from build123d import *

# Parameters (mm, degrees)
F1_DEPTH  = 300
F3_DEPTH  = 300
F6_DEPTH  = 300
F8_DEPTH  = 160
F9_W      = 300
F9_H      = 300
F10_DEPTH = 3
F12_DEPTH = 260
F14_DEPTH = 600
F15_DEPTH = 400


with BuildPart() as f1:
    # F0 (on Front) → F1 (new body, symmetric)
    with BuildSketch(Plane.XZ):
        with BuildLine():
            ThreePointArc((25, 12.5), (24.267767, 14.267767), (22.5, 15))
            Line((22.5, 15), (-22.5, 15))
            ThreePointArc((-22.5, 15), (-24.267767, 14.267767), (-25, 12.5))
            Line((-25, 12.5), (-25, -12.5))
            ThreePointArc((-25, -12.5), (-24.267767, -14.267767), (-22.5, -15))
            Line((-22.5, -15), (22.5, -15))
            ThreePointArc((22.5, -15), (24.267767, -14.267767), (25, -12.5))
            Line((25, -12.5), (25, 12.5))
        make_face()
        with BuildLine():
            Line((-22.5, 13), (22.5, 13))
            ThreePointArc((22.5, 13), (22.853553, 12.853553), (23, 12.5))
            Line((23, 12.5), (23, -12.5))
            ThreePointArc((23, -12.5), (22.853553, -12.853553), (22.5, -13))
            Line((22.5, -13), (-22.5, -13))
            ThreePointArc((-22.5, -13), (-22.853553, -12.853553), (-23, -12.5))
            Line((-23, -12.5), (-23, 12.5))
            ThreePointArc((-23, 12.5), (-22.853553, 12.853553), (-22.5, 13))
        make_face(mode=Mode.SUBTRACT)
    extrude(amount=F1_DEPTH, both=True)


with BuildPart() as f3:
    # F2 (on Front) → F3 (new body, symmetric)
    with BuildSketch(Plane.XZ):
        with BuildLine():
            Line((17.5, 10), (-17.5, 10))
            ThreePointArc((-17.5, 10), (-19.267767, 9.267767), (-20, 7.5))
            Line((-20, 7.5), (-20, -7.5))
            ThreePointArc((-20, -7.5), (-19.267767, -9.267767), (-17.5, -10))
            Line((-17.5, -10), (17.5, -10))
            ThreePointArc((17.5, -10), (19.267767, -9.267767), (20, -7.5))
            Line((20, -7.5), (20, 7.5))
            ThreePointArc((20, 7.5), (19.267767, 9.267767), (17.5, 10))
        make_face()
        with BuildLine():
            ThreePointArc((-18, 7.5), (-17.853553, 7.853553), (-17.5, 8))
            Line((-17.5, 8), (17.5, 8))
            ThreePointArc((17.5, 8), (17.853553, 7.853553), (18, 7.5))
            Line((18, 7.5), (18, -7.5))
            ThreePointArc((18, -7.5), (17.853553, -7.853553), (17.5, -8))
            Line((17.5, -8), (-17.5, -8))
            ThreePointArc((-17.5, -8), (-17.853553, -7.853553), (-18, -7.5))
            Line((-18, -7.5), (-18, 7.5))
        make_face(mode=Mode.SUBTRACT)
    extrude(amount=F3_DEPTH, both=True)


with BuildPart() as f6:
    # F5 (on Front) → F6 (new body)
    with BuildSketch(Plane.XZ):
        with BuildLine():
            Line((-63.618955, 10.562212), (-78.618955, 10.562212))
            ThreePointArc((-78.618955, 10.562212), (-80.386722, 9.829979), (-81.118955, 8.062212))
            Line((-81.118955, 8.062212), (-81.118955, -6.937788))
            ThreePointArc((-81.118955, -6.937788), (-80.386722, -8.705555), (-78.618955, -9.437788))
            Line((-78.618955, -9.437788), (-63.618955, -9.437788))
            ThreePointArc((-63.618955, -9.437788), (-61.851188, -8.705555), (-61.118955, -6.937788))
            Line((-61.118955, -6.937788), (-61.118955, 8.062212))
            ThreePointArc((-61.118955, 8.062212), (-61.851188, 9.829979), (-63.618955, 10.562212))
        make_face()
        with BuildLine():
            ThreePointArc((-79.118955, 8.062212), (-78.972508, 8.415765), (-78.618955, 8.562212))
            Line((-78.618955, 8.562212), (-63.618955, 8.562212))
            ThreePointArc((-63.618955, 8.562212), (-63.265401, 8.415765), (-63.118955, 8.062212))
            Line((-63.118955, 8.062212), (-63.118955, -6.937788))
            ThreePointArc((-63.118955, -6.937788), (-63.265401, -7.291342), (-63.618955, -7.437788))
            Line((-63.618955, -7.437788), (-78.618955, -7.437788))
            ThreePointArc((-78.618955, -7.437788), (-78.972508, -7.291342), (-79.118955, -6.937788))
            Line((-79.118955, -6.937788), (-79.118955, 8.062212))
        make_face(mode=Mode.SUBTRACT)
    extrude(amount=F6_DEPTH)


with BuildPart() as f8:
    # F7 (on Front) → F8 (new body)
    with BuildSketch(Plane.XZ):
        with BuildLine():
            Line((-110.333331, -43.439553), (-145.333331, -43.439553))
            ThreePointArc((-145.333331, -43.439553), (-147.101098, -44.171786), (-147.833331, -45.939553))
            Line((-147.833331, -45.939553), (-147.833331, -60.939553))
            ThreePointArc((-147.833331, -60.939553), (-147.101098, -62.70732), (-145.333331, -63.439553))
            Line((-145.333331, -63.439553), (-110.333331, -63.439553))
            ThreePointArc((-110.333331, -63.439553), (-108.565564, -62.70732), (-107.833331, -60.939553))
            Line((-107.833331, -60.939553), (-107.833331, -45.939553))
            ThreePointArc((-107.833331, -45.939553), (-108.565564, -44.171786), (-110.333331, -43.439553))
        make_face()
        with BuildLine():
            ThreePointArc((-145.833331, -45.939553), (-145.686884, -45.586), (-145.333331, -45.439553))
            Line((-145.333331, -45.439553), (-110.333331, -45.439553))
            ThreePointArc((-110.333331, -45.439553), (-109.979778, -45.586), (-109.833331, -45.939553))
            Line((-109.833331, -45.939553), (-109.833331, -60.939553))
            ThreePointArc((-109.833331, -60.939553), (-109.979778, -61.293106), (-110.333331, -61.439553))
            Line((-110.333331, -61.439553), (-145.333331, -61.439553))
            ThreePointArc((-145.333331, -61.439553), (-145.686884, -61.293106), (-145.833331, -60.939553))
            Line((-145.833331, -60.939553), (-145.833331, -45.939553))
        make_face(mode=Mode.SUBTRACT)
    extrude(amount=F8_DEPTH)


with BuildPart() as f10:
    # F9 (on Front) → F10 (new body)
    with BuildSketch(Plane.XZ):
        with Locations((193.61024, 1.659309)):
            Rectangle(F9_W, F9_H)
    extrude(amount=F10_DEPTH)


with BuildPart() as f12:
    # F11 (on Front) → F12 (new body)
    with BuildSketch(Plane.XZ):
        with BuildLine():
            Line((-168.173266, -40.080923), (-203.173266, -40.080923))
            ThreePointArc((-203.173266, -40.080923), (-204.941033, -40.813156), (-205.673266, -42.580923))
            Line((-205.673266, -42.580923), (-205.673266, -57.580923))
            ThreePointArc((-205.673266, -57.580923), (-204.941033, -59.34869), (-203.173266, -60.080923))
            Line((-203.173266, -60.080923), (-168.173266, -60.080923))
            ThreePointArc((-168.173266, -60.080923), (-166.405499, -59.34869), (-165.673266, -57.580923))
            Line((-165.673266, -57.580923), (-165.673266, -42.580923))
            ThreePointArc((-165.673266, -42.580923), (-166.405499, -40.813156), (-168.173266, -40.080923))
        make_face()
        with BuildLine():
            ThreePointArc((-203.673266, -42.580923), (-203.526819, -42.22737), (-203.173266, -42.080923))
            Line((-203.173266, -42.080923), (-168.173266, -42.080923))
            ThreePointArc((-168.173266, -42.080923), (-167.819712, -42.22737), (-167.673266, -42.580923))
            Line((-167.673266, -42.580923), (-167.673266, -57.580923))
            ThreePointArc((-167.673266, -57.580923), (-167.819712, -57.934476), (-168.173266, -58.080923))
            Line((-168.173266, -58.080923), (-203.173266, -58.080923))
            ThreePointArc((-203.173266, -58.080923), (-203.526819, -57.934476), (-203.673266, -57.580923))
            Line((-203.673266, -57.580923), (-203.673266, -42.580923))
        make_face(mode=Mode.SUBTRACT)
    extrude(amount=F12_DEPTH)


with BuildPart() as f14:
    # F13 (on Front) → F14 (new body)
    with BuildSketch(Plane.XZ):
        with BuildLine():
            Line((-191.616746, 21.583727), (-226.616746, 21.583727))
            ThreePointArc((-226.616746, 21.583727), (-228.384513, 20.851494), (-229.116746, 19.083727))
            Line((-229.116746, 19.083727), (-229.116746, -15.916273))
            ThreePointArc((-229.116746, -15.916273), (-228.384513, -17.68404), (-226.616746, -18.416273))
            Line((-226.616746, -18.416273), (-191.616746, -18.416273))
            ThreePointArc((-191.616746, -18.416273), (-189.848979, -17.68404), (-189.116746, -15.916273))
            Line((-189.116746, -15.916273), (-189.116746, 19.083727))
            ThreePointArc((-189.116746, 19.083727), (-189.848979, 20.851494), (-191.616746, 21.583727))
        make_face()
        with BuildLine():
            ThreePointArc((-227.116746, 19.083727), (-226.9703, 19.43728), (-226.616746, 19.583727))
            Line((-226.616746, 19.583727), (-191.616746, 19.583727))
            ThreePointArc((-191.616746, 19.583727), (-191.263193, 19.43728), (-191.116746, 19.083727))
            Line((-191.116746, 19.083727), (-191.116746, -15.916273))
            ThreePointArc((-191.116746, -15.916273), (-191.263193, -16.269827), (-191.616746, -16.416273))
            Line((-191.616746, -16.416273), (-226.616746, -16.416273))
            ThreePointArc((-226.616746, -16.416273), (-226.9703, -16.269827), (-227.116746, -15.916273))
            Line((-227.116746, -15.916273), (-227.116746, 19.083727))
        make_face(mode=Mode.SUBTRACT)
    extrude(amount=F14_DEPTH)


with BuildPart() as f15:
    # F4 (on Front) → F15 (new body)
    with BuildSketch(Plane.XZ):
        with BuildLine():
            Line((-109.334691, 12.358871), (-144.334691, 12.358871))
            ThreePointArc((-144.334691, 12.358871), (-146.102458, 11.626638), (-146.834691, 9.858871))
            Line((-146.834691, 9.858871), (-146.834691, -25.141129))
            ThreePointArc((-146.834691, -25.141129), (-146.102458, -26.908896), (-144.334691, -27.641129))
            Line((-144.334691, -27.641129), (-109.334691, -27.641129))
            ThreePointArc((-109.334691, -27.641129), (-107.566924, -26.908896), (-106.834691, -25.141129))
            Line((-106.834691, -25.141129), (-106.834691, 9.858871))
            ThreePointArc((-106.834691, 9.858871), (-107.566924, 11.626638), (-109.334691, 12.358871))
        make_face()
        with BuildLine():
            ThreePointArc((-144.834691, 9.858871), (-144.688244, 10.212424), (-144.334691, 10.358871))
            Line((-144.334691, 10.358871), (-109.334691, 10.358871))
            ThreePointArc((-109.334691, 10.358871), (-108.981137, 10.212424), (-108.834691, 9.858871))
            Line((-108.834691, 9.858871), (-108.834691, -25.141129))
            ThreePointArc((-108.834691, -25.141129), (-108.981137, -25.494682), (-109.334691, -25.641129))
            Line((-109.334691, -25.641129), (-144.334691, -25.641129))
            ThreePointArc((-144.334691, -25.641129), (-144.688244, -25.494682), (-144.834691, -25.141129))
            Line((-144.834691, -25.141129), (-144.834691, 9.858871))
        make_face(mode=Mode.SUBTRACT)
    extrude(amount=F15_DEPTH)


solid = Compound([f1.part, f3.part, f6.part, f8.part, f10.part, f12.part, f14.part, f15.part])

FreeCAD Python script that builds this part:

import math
import FreeCAD as App
import Part
import Sketcher
Q = App.Units.Quantity

doc = App.newDocument("Part")
body = doc.addObject("PartDesign::Body", "Body")

# Sketch on XZ plane
sketch1 = body.newObject("Sketcher::SketchObject", "Sketch")
sketch1.AttachmentSupport = (doc.getObject("XZ_Plane"), [""])
sketch1.MapMode = "FlatFace"
sketch1.addGeometry([
    Part.ArcOfCircle(Part.Circle(App.Vector(22.5, 12.5, 0), App.Vector(0, 0, 1), 2.5), math.radians(0), math.radians(90)),  # 0
    Part.LineSegment(App.Vector(22.5, 15, 0), App.Vector(-22.5, 15, 0)),  # 1
    Part.ArcOfCircle(Part.Circle(App.Vector(-22.5, 12.5, 0), App.Vector(0, 0, 1), 2.5), math.radians(90), math.radians(180)),  # 2
    Part.LineSegment(App.Vector(-25, 12.5, 0), App.Vector(-25, -12.5, 0)),  # 3
    Part.ArcOfCircle(Part.Circle(App.Vector(-22.5, -12.5, 0), App.Vector(0, 0, 1), 2.5), math.radians(180), math.radians(270)),  # 4
    Part.LineSegment(App.Vector(-22.5, -15, 0), App.Vector(22.5, -15, 0)),  # 5
    Part.ArcOfCircle(Part.Circle(App.Vector(22.5, -12.5, 0), App.Vector(0, 0, 1), 2.5), math.radians(-90), math.radians(0)),  # 6
    Part.LineSegment(App.Vector(25, -12.5, 0), App.Vector(25, 12.5, 0)),  # 7
    Part.ArcOfCircle(Part.Circle(App.Vector(-22.5, 12.5, 0), App.Vector(0, 0, 1), 0.5), math.radians(90), math.radians(180)),  # 8
    Part.LineSegment(App.Vector(-22.5, 13, 0), App.Vector(22.5, 13, 0)),  # 9
    Part.ArcOfCircle(Part.Circle(App.Vector(22.5, 12.5, 0), App.Vector(0, 0, 1), 0.5), math.radians(0), math.radians(90)),  # 10
    Part.LineSegment(App.Vector(23, 12.5, 0), App.Vector(23, -12.5, 0)),  # 11
    Part.ArcOfCircle(Part.Circle(App.Vector(22.5, -12.5, 0), App.Vector(0, 0, 1), 0.5), math.radians(-90), math.radians(0)),  # 12
    Part.LineSegment(App.Vector(22.5, -13, 0), App.Vector(-22.5, -13, 0)),  # 13
    Part.ArcOfCircle(Part.Circle(App.Vector(-22.5, -12.5, 0), App.Vector(0, 0, 1), 0.5), math.radians(-180), math.radians(-90)),  # 14
    Part.LineSegment(App.Vector(-23, -12.5, 0), App.Vector(-23, 12.5, 0)),  # 15
], False)
sketch1.addConstraint([
    Sketcher.Constraint("Tangent", 0, 2, 1, 1),
    Sketcher.Constraint("Tangent", 1, 2, 2, 1),
    Sketcher.Constraint("Tangent", 2, 2, 3, 1),
    Sketcher.Constraint("Tangent", 3, 2, 4, 1),
    Sketcher.Constraint("Tangent", 4, 2, 5, 1),
    Sketcher.Constraint("Tangent", 5, 2, 6, 1),
    Sketcher.Constraint("Tangent", 6, 2, 7, 1),
    Sketcher.Constraint("Tangent", 7, 2, 0, 1),
    Sketcher.Constraint("Coincident", 8, 1, 9, 1),
    Sketcher.Constraint("Coincident", 9, 2, 10, 2),
    Sketcher.Constraint("Coincident", 10, 1, 11, 1),
    Sketcher.Constraint("Coincident", 11, 2, 12, 2),
    Sketcher.Constraint("Coincident", 12, 1, 13, 1),
    Sketcher.Constraint("Coincident", 13, 2, 14, 2),
    Sketcher.Constraint("Coincident", 14, 1, 15, 1),
    Sketcher.Constraint("Coincident", 15, 2, 8, 2),
    Sketcher.Constraint("Horizontal", 1),
    Sketcher.Constraint("Vertical", 3),
    Sketcher.Constraint("Horizontal", 5),
    Sketcher.Constraint("Vertical", 7),
    Sketcher.Constraint("Horizontal", 9),
    Sketcher.Constraint("Vertical", 11),
    Sketcher.Constraint("Horizontal", 13),
    Sketcher.Constraint("Vertical", 15),
    Sketcher.Constraint("Coincident", 8, 3, 2, 3),
    Sketcher.Constraint("Coincident", 10, 3, 0, 3),
    Sketcher.Constraint("Coincident", 12, 3, 6, 3),
    Sketcher.Constraint("Equal", 0, 2),
    Sketcher.Constraint("Equal", 2, 4),
    Sketcher.Constraint("Equal", 4, 6),
    Sketcher.Constraint("Equal", 12, 14),
    Sketcher.Constraint("Symmetric", 0, 3, 4, 3, -1, 1),
    Sketcher.Constraint("Horizontal", 7, 2, 10, 1),
    Sketcher.Constraint("Horizontal", 6, 2, 11, 2),
    Sketcher.Constraint("Horizontal", 11, 2, 14, 1),
    Sketcher.Constraint("Horizontal", 10, 1, 15, 2),
    Sketcher.Constraint("Vertical", 4, 2, 8, 1),
    Sketcher.Constraint("Vertical", 5, 2, 9, 2),
    Sketcher.Constraint("Vertical", 9, 2, 12, 1),
    Sketcher.Constraint("Vertical", 8, 1, 13, 2),
    Sketcher.Constraint("Radius", 0, Q("2.5 mm")),
    Sketcher.Constraint("Radius", 8, Q("0.500001 mm")),
    Sketcher.Constraint("DistanceX", 1, 2, 1, 1, Q("45 mm")),
    Sketcher.Constraint("DistanceY", 3, 2, 3, 1, Q("25 mm")),
])
pad1 = body.newObject("PartDesign::Pad", "Pad")
pad1.Profile = sketch1
pad1.Length = 600
pad1.Midplane = True
body2 = doc.addObject("PartDesign::Body", "Body001")

# Sketch on XZ plane
sketch2 = body2.newObject("Sketcher::SketchObject", "Sketch001")
sketch2.AttachmentSupport = (doc.getObject("XZ_Plane001"), [""])
sketch2.MapMode = "FlatFace"
sketch2.addGeometry([
    Part.LineSegment(App.Vector(17.5, 10, 0), App.Vector(-17.5, 10, 0)),  # 0
    Part.ArcOfCircle(Part.Circle(App.Vector(-17.5, 7.5, 0), App.Vector(0, 0, 1), 2.5), math.radians(90), math.radians(180)),  # 1
    Part.LineSegment(App.Vector(-20, 7.5, 0), App.Vector(-20, -7.5, 0)),  # 2
    Part.ArcOfCircle(Part.Circle(App.Vector(-17.5, -7.5, 0), App.Vector(0, 0, 1), 2.5), math.radians(180), math.radians(270)),  # 3
    Part.LineSegment(App.Vector(-17.5, -10, 0), App.Vector(17.5, -10, 0)),  # 4
    Part.ArcOfCircle(Part.Circle(App.Vector(17.5, -7.5, 0), App.Vector(0, 0, 1), 2.5), math.radians(-90), math.radians(0)),  # 5
    Part.LineSegment(App.Vector(20, -7.5, 0), App.Vector(20, 7.5, 0)),  # 6
    Part.ArcOfCircle(Part.Circle(App.Vector(17.5, 7.5, 0), App.Vector(0, 0, 1), 2.5), math.radians(0), math.radians(90)),  # 7
    Part.LineSegment(App.Vector(-18, -7.5, 0), App.Vector(-18, 7.5, 0)),  # 8
    Part.ArcOfCircle(Part.Circle(App.Vector(-17.5, 7.5, 0), App.Vector(0, 0, 1), 0.5), math.radians(90), math.radians(180)),  # 9
    Part.LineSegment(App.Vector(-17.5, 8, 0), App.Vector(17.5, 8, 0)),  # 10
    Part.ArcOfCircle(Part.Circle(App.Vector(17.5, 7.5, 0), App.Vector(0, 0, 1), 0.5), math.radians(0), math.radians(90)),  # 11
    Part.LineSegment(App.Vector(18, 7.5, 0), App.Vector(18, -7.5, 0)),  # 12
    Part.ArcOfCircle(Part.Circle(App.Vector(17.5, -7.5, 0), App.Vector(0, 0, 1), 0.5), math.radians(-90), math.radians(0)),  # 13
    Part.LineSegment(App.Vector(17.5, -8, 0), App.Vector(-17.5, -8, 0)),  # 14
    Part.ArcOfCircle(Part.Circle(App.Vector(-17.5, -7.5, 0), App.Vector(0, 0, 1), 0.5), math.radians(-180), math.radians(-90)),  # 15
], False)
sketch2.addConstraint([
    Sketcher.Constraint("Tangent", 0, 2, 1, 1),
    Sketcher.Constraint("Tangent", 1, 2, 2, 1),
    Sketcher.Constraint("Tangent", 2, 2, 3, 1),
    Sketcher.Constraint("Tangent", 3, 2, 4, 1),
    Sketcher.Constraint("Tangent", 4, 2, 5, 1),
    Sketcher.Constraint("Tangent", 5, 2, 6, 1),
    Sketcher.Constraint("Tangent", 6, 2, 7, 1),
    Sketcher.Constraint("Tangent", 7, 2, 0, 1),
    Sketcher.Constraint("Coincident", 8, 2, 9, 2),
    Sketcher.Constraint("Coincident", 9, 1, 10, 1),
    Sketcher.Constraint("Coincident", 10, 2, 11, 2),
    Sketcher.Constraint("Coincident", 11, 1, 12, 1),
    Sketcher.Constraint("Coincident", 12, 2, 13, 2),
    Sketcher.Constraint("Coincident", 13, 1, 14, 1),
    Sketcher.Constraint("Coincident", 14, 2, 15, 2),
    Sketcher.Constraint("Coincident", 15, 1, 8, 1),
    Sketcher.Constraint("Horizontal", 0),
    Sketcher.Constraint("Vertical", 2),
    Sketcher.Constraint("Horizontal", 4),
    Sketcher.Constraint("Vertical", 6),
    Sketcher.Constraint("Vertical", 8),
    Sketcher.Constraint("Horizontal", 10),
    Sketcher.Constraint("Vertical", 12),
    Sketcher.Constraint("Horizontal", 14),
    Sketcher.Constraint("Coincident", 9, 3, 1, 3),
    Sketcher.Constraint("Coincident", 11, 3, 7, 3),
    Sketcher.Constraint("Coincident", 13, 3, 5, 3),
    Sketcher.Constraint("Equal", 1, 3),
    Sketcher.Constraint("Equal", 3, 5),
    Sketcher.Constraint("Equal", 5, 7),
    Sketcher.Constraint("Equal", 13, 15),
    Sketcher.Constraint("Symmetric", 1, 3, 5, 3, -1, 1),
    Sketcher.Constraint("Horizontal", 6, 2, 8, 2),
    Sketcher.Constraint("Horizontal", 8, 2, 11, 1),
    Sketcher.Constraint("Horizontal", 5, 2, 12, 2),
    Sketcher.Constraint("Horizontal", 12, 2, 15, 1),
    Sketcher.Constraint("Vertical", 3, 2, 9, 1),
    Sketcher.Constraint("Vertical", 7, 2, 10, 2),
    Sketcher.Constraint("Vertical", 10, 2, 13, 1),
    Sketcher.Constraint("Vertical", 9, 1, 14, 2),
    Sketcher.Constraint("Radius", 1, Q("2.5 mm")),
    Sketcher.Constraint("Radius", 9, Q("0.500001 mm")),
    Sketcher.Constraint("DistanceX", 0, 2, 0, 1, Q("35 mm")),
    Sketcher.Constraint("DistanceY", 2, 2, 2, 1, Q("15 mm")),
])
pad2 = body2.newObject("PartDesign::Pad", "Pad001")
pad2.Profile = sketch2
pad2.Length = 600
pad2.Midplane = True
body3 = doc.addObject("PartDesign::Body", "Body002")

# Sketch on XZ plane
sketch3 = body3.newObject("Sketcher::SketchObject", "Sketch002")
sketch3.AttachmentSupport = (doc.getObject("XZ_Plane002"), [""])
sketch3.MapMode = "FlatFace"
sketch3.addGeometry([
    Part.LineSegment(App.Vector(-63.62, 10.56, 0), App.Vector(-78.62, 10.56, 0)),  # 0
    Part.ArcOfCircle(Part.Circle(App.Vector(-78.62, 8.06, 0), App.Vector(0, 0, 1), 2.5), math.radians(90), math.radians(180)),  # 1
    Part.LineSegment(App.Vector(-81.12, 8.06, 0), App.Vector(-81.12, -6.94, 0)),  # 2
    Part.ArcOfCircle(Part.Circle(App.Vector(-78.62, -6.94, 0), App.Vector(0, 0, 1), 2.5), math.radians(180), math.radians(270)),  # 3
    Part.LineSegment(App.Vector(-78.62, -9.44, 0), App.Vector(-63.62, -9.44, 0)),  # 4
    Part.ArcOfCircle(Part.Circle(App.Vector(-63.62, -6.94, 0), App.Vector(0, 0, 1), 2.5), math.radians(-90), math.radians(0)),  # 5
    Part.LineSegment(App.Vector(-61.12, -6.94, 0), App.Vector(-61.12, 8.06, 0)),  # 6
    Part.ArcOfCircle(Part.Circle(App.Vector(-63.62, 8.06, 0), App.Vector(0, 0, 1), 2.5), math.radians(0), math.radians(90)),  # 7
    Part.LineSegment(App.Vector(-79.12, -6.94, 0), App.Vector(-79.12, 8.06, 0)),  # 8
    Part.ArcOfCircle(Part.Circle(App.Vector(-78.62, 8.06, 0), App.Vector(0, 0, 1), 0.5), math.radians(90), math.radians(180)),  # 9
    Part.LineSegment(App.Vector(-78.62, 8.56, 0), App.Vector(-63.62, 8.56, 0)),  # 10
    Part.ArcOfCircle(Part.Circle(App.Vector(-63.62, 8.06, 0), App.Vector(0, 0, 1), 0.5), math.radians(0), math.radians(90)),  # 11
    Part.LineSegment(App.Vector(-63.12, 8.06, 0), App.Vector(-63.12, -6.94, 0)),  # 12
    Part.ArcOfCircle(Part.Circle(App.Vector(-63.62, -6.94, 0), App.Vector(0, 0, 1), 0.5), math.radians(-90), math.radians(0)),  # 13
    Part.LineSegment(App.Vector(-63.62, -7.44, 0), App.Vector(-78.62, -7.44, 0)),  # 14
    Part.ArcOfCircle(Part.Circle(App.Vector(-78.62, -6.94, 0), App.Vector(0, 0, 1), 0.5), math.radians(180), math.radians(270)),  # 15
], False)
sketch3.addConstraint([
    Sketcher.Constraint("Tangent", 0, 2, 1, 1),
    Sketcher.Constraint("Tangent", 1, 2, 2, 1),
    Sketcher.Constraint("Tangent", 2, 2, 3, 1),
    Sketcher.Constraint("Tangent", 3, 2, 4, 1),
    Sketcher.Constraint("Tangent", 4, 2, 5, 1),
    Sketcher.Constraint("Tangent", 5, 2, 6, 1),
    Sketcher.Constraint("Tangent", 6, 2, 7, 1),
    Sketcher.Constraint("Tangent", 7, 2, 0, 1),
    Sketcher.Constraint("Coincident", 8, 2, 9, 2),
    Sketcher.Constraint("Coincident", 9, 1, 10, 1),
    Sketcher.Constraint("Tangent", 10, 2, 11, 2),
    Sketcher.Constraint("Tangent", 11, 1, 12, 1),
    Sketcher.Constraint("Coincident", 12, 2, 13, 2),
    Sketcher.Constraint("Coincident", 13, 1, 14, 1),
    Sketcher.Constraint("Tangent", 14, 2, 15, 2),
    Sketcher.Constraint("Tangent", 15, 1, 8, 1),
    Sketcher.Constraint("Horizontal", 0),
    Sketcher.Constraint("Vertical", 2),
    Sketcher.Constraint("Horizontal", 4),
    Sketcher.Constraint("Vertical", 6),
    Sketcher.Constraint("Vertical", 8),
    Sketcher.Constraint("Horizontal", 10),
    Sketcher.Constraint("Vertical", 12),
    Sketcher.Constraint("Horizontal", 14),
    Sketcher.Constraint("Coincident", 9, 3, 1, 3),
    Sketcher.Constraint("Coincident", 11, 3, 7, 3),
    Sketcher.Constraint("Coincident", 13, 3, 5, 3),
    Sketcher.Constraint("Equal", 1, 3),
    Sketcher.Constraint("Equal", 3, 5),
    Sketcher.Constraint("Equal", 5, 7),
    Sketcher.Constraint("Equal", 13, 15),
    Sketcher.Constraint("Horizontal", 6, 2, 8, 2),
    Sketcher.Constraint("Horizontal", 5, 2, 12, 2),
    Sketcher.Constraint("Vertical", 3, 2, 9, 1),
    Sketcher.Constraint("Vertical", 10, 2, 13, 1),
    Sketcher.Constraint("Equal", 14, 2),
    Sketcher.Constraint("Radius", 1, Q("2.5 mm")),
    Sketcher.Constraint("Radius", 9, Q("0.500001 mm")),
    Sketcher.Constraint("DistanceX", 0, 2, 0, 1, Q("15 mm")),
    Sketcher.Constraint("DistanceY", 3, 3, -1, 1, Q("6.937788 mm")),
    Sketcher.Constraint("DistanceX", 1, 3, -1, 1, Q("78.618955 mm")),
])
pad3 = body3.newObject("PartDesign::Pad", "Pad002")
pad3.Profile = sketch3
pad3.Length = 300
body4 = doc.addObject("PartDesign::Body", "Body003")

# Sketch on XZ plane
sketch4 = body4.newObject("Sketcher::SketchObject", "Sketch003")
sketch4.AttachmentSupport = (doc.getObject("XZ_Plane003"), [""])
sketch4.MapMode = "FlatFace"
sketch4.addGeometry([
    Part.LineSegment(App.Vector(-110.3, -43.4, 0), App.Vector(-145.3, -43.4, 0)),  # 0
    Part.ArcOfCircle(Part.Circle(App.Vector(-145.3, -45.9, 0), App.Vector(0, 0, 1), 2.5), math.radians(90), math.radians(180)),  # 1
    Part.LineSegment(App.Vector(-147.8, -45.9, 0), App.Vector(-147.8, -60.9, 0)),  # 2
    Part.ArcOfCircle(Part.Circle(App.Vector(-145.3, -60.9, 0), App.Vector(0, 0, 1), 2.5), math.radians(180), math.radians(270)),  # 3
    Part.LineSegment(App.Vector(-145.3, -63.4, 0), App.Vector(-110.3, -63.4, 0)),  # 4
    Part.ArcOfCircle(Part.Circle(App.Vector(-110.3, -60.9, 0), App.Vector(0, 0, 1), 2.5), math.radians(-90), math.radians(0)),  # 5
    Part.LineSegment(App.Vector(-107.8, -60.9, 0), App.Vector(-107.8, -45.9, 0)),  # 6
    Part.ArcOfCircle(Part.Circle(App.Vector(-110.3, -45.9, 0), App.Vector(0, 0, 1), 2.5), math.radians(0), math.radians(90)),  # 7
    Part.LineSegment(App.Vector(-145.8, -60.9, 0), App.Vector(-145.8, -45.9, 0)),  # 8
    Part.ArcOfCircle(Part.Circle(App.Vector(-145.3, -45.9, 0), App.Vector(0, 0, 1), 0.5), math.radians(90), math.radians(180)),  # 9
    Part.LineSegment(App.Vector(-145.3, -45.4, 0), App.Vector(-110.3, -45.4, 0)),  # 10
    Part.ArcOfCircle(Part.Circle(App.Vector(-110.3, -45.9, 0), App.Vector(0, 0, 1), 0.5), math.radians(0), math.radians(90)),  # 11
    Part.LineSegment(App.Vector(-109.8, -45.9, 0), App.Vector(-109.8, -60.9, 0)),  # 12
    Part.ArcOfCircle(Part.Circle(App.Vector(-110.3, -60.9, 0), App.Vector(0, 0, 1), 0.5), math.radians(-90), math.radians(0)),  # 13
    Part.LineSegment(App.Vector(-110.3, -61.4, 0), App.Vector(-145.3, -61.4, 0)),  # 14
    Part.ArcOfCircle(Part.Circle(App.Vector(-145.3, -60.9, 0), App.Vector(0, 0, 1), 0.5), math.radians(-180), math.radians(-90)),  # 15
], False)
sketch4.addConstraint([
    Sketcher.Constraint("Tangent", 0, 2, 1, 1),
    Sketcher.Constraint("Tangent", 1, 2, 2, 1),
    Sketcher.Constraint("Tangent", 2, 2, 3, 1),
    Sketcher.Constraint("Tangent", 3, 2, 4, 1),
    Sketcher.Constraint("Tangent", 4, 2, 5, 1),
    Sketcher.Constraint("Tangent", 5, 2, 6, 1),
    Sketcher.Constraint("Tangent", 6, 2, 7, 1),
    Sketcher.Constraint("Tangent", 7, 2, 0, 1),
    Sketcher.Constraint("Coincident", 8, 2, 9, 2),
    Sketcher.Constraint("Coincident", 9, 1, 10, 1),
    Sketcher.Constraint("Coincident", 10, 2, 11, 2),
    Sketcher.Constraint("Coincident", 11, 1, 12, 1),
    Sketcher.Constraint("Coincident", 12, 2, 13, 2),
    Sketcher.Constraint("Coincident", 13, 1, 14, 1),
    Sketcher.Constraint("Coincident", 14, 2, 15, 2),
    Sketcher.Constraint("Coincident", 15, 1, 8, 1),
    Sketcher.Constraint("Horizontal", 0),
    Sketcher.Constraint("Vertical", 2),
    Sketcher.Constraint("Horizontal", 4),
    Sketcher.Constraint("Vertical", 6),
    Sketcher.Constraint("Vertical", 8),
    Sketcher.Constraint("Horizontal", 10),
    Sketcher.Constraint("Vertical", 12),
    Sketcher.Constraint("Horizontal", 14),
    Sketcher.Constraint("Coincident", 9, 3, 1, 3),
    Sketcher.Constraint("Coincident", 11, 3, 7, 3),
    Sketcher.Constraint("Coincident", 13, 3, 5, 3),
    Sketcher.Constraint("Equal", 1, 3),
    Sketcher.Constraint("Equal", 3, 5),
    Sketcher.Constraint("Equal", 5, 7),
    Sketcher.Constraint("Equal", 13, 15),
    Sketcher.Constraint("Horizontal", 6, 2, 8, 2),
    Sketcher.Constraint("Horizontal", 8, 2, 11, 1),
    Sketcher.Constraint("Horizontal", 5, 2, 12, 2),
    Sketcher.Constraint("Horizontal", 12, 2, 15, 1),
    Sketcher.Constraint("Vertical", 3, 2, 9, 1),
    Sketcher.Constraint("Vertical", 7, 2, 10, 2),
    Sketcher.Constraint("Vertical", 10, 2, 13, 1),
    Sketcher.Constraint("Vertical", 9, 1, 14, 2),
    Sketcher.Constraint("Radius", 1, Q("2.5 mm")),
    Sketcher.Constraint("Radius", 9, Q("0.500001 mm")),
    Sketcher.Constraint("DistanceX", 0, 2, 0, 1, Q("35 mm")),
    Sketcher.Constraint("DistanceY", 2, 2, 2, 1, Q("15 mm")),
    Sketcher.Constraint("DistanceX", 1, 3, -1, 1, Q("145.333331 mm")),
    Sketcher.Constraint("DistanceY", 13, 3, -1, 1, Q("60.939552 mm")),
])
pad4 = body4.newObject("PartDesign::Pad", "Pad003")
pad4.Profile = sketch4
pad4.Length = 160
body5 = doc.addObject("PartDesign::Body", "Body004")

# Sketch on XZ plane
sketch5 = body5.newObject("Sketcher::SketchObject", "Sketch004")
sketch5.AttachmentSupport = (doc.getObject("XZ_Plane004"), [""])
sketch5.MapMode = "FlatFace"
sketch5.addGeometry([
    Part.LineSegment(App.Vector(44, 152, 0), App.Vector(44, -148, 0)),
    Part.LineSegment(App.Vector(44, -148, 0), App.Vector(344, -148, 0)),
    Part.LineSegment(App.Vector(344, -148, 0), App.Vector(344, 152, 0)),
    Part.LineSegment(App.Vector(344, 152, 0), App.Vector(44, 152, 0)),
], False)
sketch5.addConstraint([
    Sketcher.Constraint("Coincident", 0, 2, 1, 1),
    Sketcher.Constraint("Coincident", 1, 2, 2, 1),
    Sketcher.Constraint("Coincident", 2, 2, 3, 1),
    Sketcher.Constraint("Coincident", 3, 2, 0, 1),
    Sketcher.Constraint("Vertical", 0),
    Sketcher.Constraint("Horizontal", 1),
    Sketcher.Constraint("Vertical", 2),
    Sketcher.Constraint("Horizontal", 3),
    Sketcher.Constraint("Equal", 3, 0),
    Sketcher.Constraint("DistanceX", 1, 1, 1, 2, Q("300 mm")),
    Sketcher.Constraint("DistanceX", -1, 1, 0, 2, Q("43.61024 mm")),
    Sketcher.Constraint("DistanceY", 0, 2, -1, 1, Q("148.340691 mm")),
])
pad5 = body5.newObject("PartDesign::Pad", "Pad004")
pad5.Profile = sketch5
pad5.Length = 3
body6 = doc.addObject("PartDesign::Body", "Body005")

# Sketch on XZ plane
sketch6 = body6.newObject("Sketcher::SketchObject", "Sketch005")
sketch6.AttachmentSupport = (doc.getObject("XZ_Plane005"), [""])
sketch6.MapMode = "FlatFace"
sketch6.addGeometry([
    Part.LineSegment(App.Vector(-168.17, -40.08, 0), App.Vector(-203.17, -40.08, 0)),  # 0
    Part.ArcOfCircle(Part.Circle(App.Vector(-203.17, -42.58, 0), App.Vector(0, 0, 1), 2.5), math.radians(90), math.radians(180)),  # 1
    Part.LineSegment(App.Vector(-205.67, -42.58, 0), App.Vector(-205.67, -57.58, 0)),  # 2
    Part.ArcOfCircle(Part.Circle(App.Vector(-203.17, -57.58, 0), App.Vector(0, 0, 1), 2.5), math.radians(180), math.radians(270)),  # 3
    Part.LineSegment(App.Vector(-203.17, -60.08, 0), App.Vector(-168.17, -60.08, 0)),  # 4
    Part.ArcOfCircle(Part.Circle(App.Vector(-168.17, -57.58, 0), App.Vector(0, 0, 1), 2.5), math.radians(-90), math.radians(0)),  # 5
    Part.LineSegment(App.Vector(-165.67, -57.58, 0), App.Vector(-165.67, -42.58, 0)),  # 6
    Part.ArcOfCircle(Part.Circle(App.Vector(-168.17, -42.58, 0), App.Vector(0, 0, 1), 2.5), math.radians(0), math.radians(90)),  # 7
    Part.LineSegment(App.Vector(-203.67, -57.58, 0), App.Vector(-203.67, -42.58, 0)),  # 8
    Part.ArcOfCircle(Part.Circle(App.Vector(-203.17, -42.58, 0), App.Vector(0, 0, 1), 0.5), math.radians(90), math.radians(180)),  # 9
    Part.LineSegment(App.Vector(-203.17, -42.08, 0), App.Vector(-168.17, -42.08, 0)),  # 10
    Part.ArcOfCircle(Part.Circle(App.Vector(-168.17, -42.58, 0), App.Vector(0, 0, 1), 0.5), math.radians(0), math.radians(90)),  # 11
    Part.LineSegment(App.Vector(-167.67, -42.58, 0), App.Vector(-167.67, -57.58, 0)),  # 12
    Part.ArcOfCircle(Part.Circle(App.Vector(-168.17, -57.58, 0), App.Vector(0, 0, 1), 0.5), math.radians(-90), math.radians(0)),  # 13
    Part.LineSegment(App.Vector(-168.17, -58.08, 0), App.Vector(-203.17, -58.08, 0)),  # 14
    Part.ArcOfCircle(Part.Circle(App.Vector(-203.17, -57.58, 0), App.Vector(0, 0, 1), 0.5), math.radians(-180), math.radians(-90)),  # 15
], False)
sketch6.addConstraint([
    Sketcher.Constraint("Tangent", 0, 2, 1, 1),
    Sketcher.Constraint("Tangent", 1, 2, 2, 1),
    Sketcher.Constraint("Tangent", 2, 2, 3, 1),
    Sketcher.Constraint("Tangent", 3, 2, 4, 1),
    Sketcher.Constraint("Tangent", 4, 2, 5, 1),
    Sketcher.Constraint("Tangent", 5, 2, 6, 1),
    Sketcher.Constraint("Tangent", 6, 2, 7, 1),
    Sketcher.Constraint("Tangent", 7, 2, 0, 1),
    Sketcher.Constraint("Coincident", 8, 2, 9, 2),
    Sketcher.Constraint("Coincident", 9, 1, 10, 1),
    Sketcher.Constraint("Tangent", 10, 2, 11, 2),
    Sketcher.Constraint("Tangent", 11, 1, 12, 1),
    Sketcher.Constraint("Tangent", 12, 2, 13, 2),
    Sketcher.Constraint("Tangent", 13, 1, 14, 1),
    Sketcher.Constraint("Coincident", 14, 2, 15, 2),
    Sketcher.Constraint("Coincident", 15, 1, 8, 1),
    Sketcher.Constraint("Horizontal", 0),
    Sketcher.Constraint("Vertical", 2),
    Sketcher.Constraint("Horizontal", 4),
    Sketcher.Constraint("Vertical", 6),
    Sketcher.Constraint("Vertical", 8),
    Sketcher.Constraint("Horizontal", 10),
    Sketcher.Constraint("Vertical", 12),
    Sketcher.Constraint("Horizontal", 14),
    Sketcher.Constraint("Coincident", 9, 3, 1, 3),
    Sketcher.Constraint("Coincident", 11, 3, 7, 3),
    Sketcher.Constraint("Coincident", 13, 3, 5, 3),
    Sketcher.Constraint("Equal", 1, 3),
    Sketcher.Constraint("Equal", 3, 5),
    Sketcher.Constraint("Equal", 5, 7),
    Sketcher.Constraint("Equal", 13, 15),
    Sketcher.Constraint("Horizontal", 6, 2, 8, 2),
    Sketcher.Constraint("Horizontal", 12, 2, 15, 1),
    Sketcher.Constraint("Vertical", 3, 2, 9, 1),
    Sketcher.Constraint("Vertical", 9, 1, 14, 2),
    Sketcher.Constraint("Radius", 1, Q("2.5 mm")),
    Sketcher.Constraint("Radius", 9, Q("0.500001 mm")),
    Sketcher.Constraint("DistanceX", 0, 2, 0, 1, Q("35 mm")),
    Sketcher.Constraint("DistanceY", 2, 2, 2, 1, Q("15 mm")),
    Sketcher.Constraint("DistanceY", 15, 3, -1, 1, Q("57.580922 mm")),
    Sketcher.Constraint("DistanceX", 1, 3, -1, 1, Q("203.173266 mm")),
])
pad6 = body6.newObject("PartDesign::Pad", "Pad005")
pad6.Profile = sketch6
pad6.Length = 260
body7 = doc.addObject("PartDesign::Body", "Body006")

# Sketch on XZ plane
sketch7 = body7.newObject("Sketcher::SketchObject", "Sketch006")
sketch7.AttachmentSupport = (doc.getObject("XZ_Plane006"), [""])
sketch7.MapMode = "FlatFace"
sketch7.addGeometry([
    Part.LineSegment(App.Vector(-191.62, 21.58, 0), App.Vector(-226.62, 21.58, 0)),  # 0
    Part.ArcOfCircle(Part.Circle(App.Vector(-226.62, 19.08, 0), App.Vector(0, 0, 1), 2.5), math.radians(90), math.radians(180)),  # 1
    Part.LineSegment(App.Vector(-229.12, 19.08, 0), App.Vector(-229.12, -15.92, 0)),  # 2
    Part.ArcOfCircle(Part.Circle(App.Vector(-226.62, -15.92, 0), App.Vector(0, 0, 1), 2.5), math.radians(180), math.radians(270)),  # 3
    Part.LineSegment(App.Vector(-226.62, -18.42, 0), App.Vector(-191.62, -18.42, 0)),  # 4
    Part.ArcOfCircle(Part.Circle(App.Vector(-191.62, -15.92, 0), App.Vector(0, 0, 1), 2.5), math.radians(-90), math.radians(0)),  # 5
    Part.LineSegment(App.Vector(-189.12, -15.92, 0), App.Vector(-189.12, 19.08, 0)),  # 6
    Part.ArcOfCircle(Part.Circle(App.Vector(-191.62, 19.08, 0), App.Vector(0, 0, 1), 2.5), math.radians(0), math.radians(90)),  # 7
    Part.LineSegment(App.Vector(-227.12, -15.92, 0), App.Vector(-227.12, 19.08, 0)),  # 8
    Part.ArcOfCircle(Part.Circle(App.Vector(-226.62, 19.08, 0), App.Vector(0, 0, 1), 0.5), math.radians(90), math.radians(180)),  # 9
    Part.LineSegment(App.Vector(-226.62, 19.58, 0), App.Vector(-191.62, 19.58, 0)),  # 10
    Part.ArcOfCircle(Part.Circle(App.Vector(-191.62, 19.08, 0), App.Vector(0, 0, 1), 0.5), math.radians(0), math.radians(90)),  # 11
    Part.LineSegment(App.Vector(-191.12, 19.08, 0), App.Vector(-191.12, -15.92, 0)),  # 12
    Part.ArcOfCircle(Part.Circle(App.Vector(-191.62, -15.92, 0), App.Vector(0, 0, 1), 0.5), math.radians(-90), math.radians(0)),  # 13
    Part.LineSegment(App.Vector(-191.62, -16.42, 0), App.Vector(-226.62, -16.42, 0)),  # 14
    Part.ArcOfCircle(Part.Circle(App.Vector(-226.62, -15.92, 0), App.Vector(0, 0, 1), 0.5), math.radians(180), math.radians(270)),  # 15
], False)
sketch7.addConstraint([
    Sketcher.Constraint("Tangent", 0, 2, 1, 1),
    Sketcher.Constraint("Tangent", 1, 2, 2, 1),
    Sketcher.Constraint("Tangent", 2, 2, 3, 1),
    Sketcher.Constraint("Tangent", 3, 2, 4, 1),
    Sketcher.Constraint("Tangent", 4, 2, 5, 1),
    Sketcher.Constraint("Tangent", 5, 2, 6, 1),
    Sketcher.Constraint("Tangent", 6, 2, 7, 1),
    Sketcher.Constraint("Tangent", 7, 2, 0, 1),
    Sketcher.Constraint("Tangent", 8, 2, 9, 2),
    Sketcher.Constraint("Tangent", 9, 1, 10, 1),
    Sketcher.Constraint("Coincident", 10, 2, 11, 2),
    Sketcher.Constraint("Coincident", 11, 1, 12, 1),
    Sketcher.Constraint("Tangent", 12, 2, 13, 2),
    Sketcher.Constraint("Tangent", 13, 1, 14, 1),
    Sketcher.Constraint("Coincident", 14, 2, 15, 2),
    Sketcher.Constraint("Coincident", 15, 1, 8, 1),
    Sketcher.Constraint("Horizontal", 0),
    Sketcher.Constraint("Vertical", 2),
    Sketcher.Constraint("Horizontal", 4),
    Sketcher.Constraint("Vertical", 6),
    Sketcher.Constraint("Vertical", 8),
    Sketcher.Constraint("Horizontal", 10),
    Sketcher.Constraint("Vertical", 12),
    Sketcher.Constraint("Horizontal", 14),
    Sketcher.Constraint("Coincident", 9, 3, 1, 3),
    Sketcher.Constraint("Coincident", 11, 3, 7, 3),
    Sketcher.Constraint("Coincident", 13, 3, 5, 3),
    Sketcher.Constraint("Equal", 1, 3),
    Sketcher.Constraint("Equal", 3, 5),
    Sketcher.Constraint("Equal", 5, 7),
    Sketcher.Constraint("Equal", 13, 15),
    Sketcher.Constraint("Horizontal", 8, 2, 11, 1),
    Sketcher.Constraint("Horizontal", 12, 2, 15, 1),
    Sketcher.Constraint("Vertical", 7, 2, 10, 2),
    Sketcher.Constraint("Vertical", 9, 1, 14, 2),
    Sketcher.Constraint("Equal", 14, 2),
    Sketcher.Constraint("Radius", 1, Q("2.5 mm")),
    Sketcher.Constraint("Radius", 9, Q("0.5 mm")),
    Sketcher.Constraint("DistanceX", 0, 2, 0, 1, Q("35 mm")),
    Sketcher.Constraint("DistanceX", 15, 3, -1, 1, Q("226.616748 mm")),
    Sketcher.Constraint("DistanceY", -1, 1, 1, 3, Q("19.083727 mm")),
])
pad7 = body7.newObject("PartDesign::Pad", "Pad006")
pad7.Profile = sketch7
pad7.Length = 600
body8 = doc.addObject("PartDesign::Body", "Body007")

# Sketch on XZ plane
sketch8 = body8.newObject("Sketcher::SketchObject", "Sketch007")
sketch8.AttachmentSupport = (doc.getObject("XZ_Plane007"), [""])
sketch8.MapMode = "FlatFace"
sketch8.addGeometry([
    Part.LineSegment(App.Vector(-109.33, 12.36, 0), App.Vector(-144.33, 12.36, 0)),  # 0
    Part.ArcOfCircle(Part.Circle(App.Vector(-144.33, 9.86, 0), App.Vector(0, 0, 1), 2.5), math.radians(90), math.radians(180)),  # 1
    Part.LineSegment(App.Vector(-146.83, 9.86, 0), App.Vector(-146.83, -25.14, 0)),  # 2
    Part.ArcOfCircle(Part.Circle(App.Vector(-144.33, -25.14, 0), App.Vector(0, 0, 1), 2.5), math.radians(180), math.radians(270)),  # 3
    Part.LineSegment(App.Vector(-144.33, -27.64, 0), App.Vector(-109.33, -27.64, 0)),  # 4
    Part.ArcOfCircle(Part.Circle(App.Vector(-109.33, -25.14, 0), App.Vector(0, 0, 1), 2.5), math.radians(-90), math.radians(0)),  # 5
    Part.LineSegment(App.Vector(-106.83, -25.14, 0), App.Vector(-106.83, 9.86, 0)),  # 6
    Part.ArcOfCircle(Part.Circle(App.Vector(-109.33, 9.86, 0), App.Vector(0, 0, 1), 2.5), math.radians(0), math.radians(90)),  # 7
    Part.LineSegment(App.Vector(-144.83, -25.14, 0), App.Vector(-144.83, 9.86, 0)),  # 8
    Part.ArcOfCircle(Part.Circle(App.Vector(-144.33, 9.86, 0), App.Vector(0, 0, 1), 0.5), math.radians(90), math.radians(180)),  # 9
    Part.LineSegment(App.Vector(-144.33, 10.36, 0), App.Vector(-109.33, 10.36, 0)),  # 10
    Part.ArcOfCircle(Part.Circle(App.Vector(-109.33, 9.86, 0), App.Vector(0, 0, 1), 0.5), math.radians(0), math.radians(90)),  # 11
    Part.LineSegment(App.Vector(-108.83, 9.86, 0), App.Vector(-108.83, -25.14, 0)),  # 12
    Part.ArcOfCircle(Part.Circle(App.Vector(-109.33, -25.14, 0), App.Vector(0, 0, 1), 0.5), math.radians(-90), math.radians(0)),  # 13
    Part.LineSegment(App.Vector(-109.33, -25.64, 0), App.Vector(-144.33, -25.64, 0)),  # 14
    Part.ArcOfCircle(Part.Circle(App.Vector(-144.33, -25.14, 0), App.Vector(0, 0, 1), 0.5), math.radians(-180), math.radians(-90)),  # 15
], False)
sketch8.addConstraint([
    Sketcher.Constraint("Tangent", 0, 2, 1, 1),
    Sketcher.Constraint("Tangent", 1, 2, 2, 1),
    Sketcher.Constraint("Tangent", 2, 2, 3, 1),
    Sketcher.Constraint("Tangent", 3, 2, 4, 1),
    Sketcher.Constraint("Tangent", 4, 2, 5, 1),
    Sketcher.Constraint("Tangent", 5, 2, 6, 1),
    Sketcher.Constraint("Tangent", 6, 2, 7, 1),
    Sketcher.Constraint("Tangent", 7, 2, 0, 1),
    Sketcher.Constraint("Coincident", 8, 2, 9, 2),
    Sketcher.Constraint("Coincident", 9, 1, 10, 1),
    Sketcher.Constraint("Tangent", 10, 2, 11, 2),
    Sketcher.Constraint("Tangent", 11, 1, 12, 1),
    Sketcher.Constraint("Tangent", 12, 2, 13, 2),
    Sketcher.Constraint("Tangent", 13, 1, 14, 1),
    Sketcher.Constraint("Coincident", 14, 2, 15, 2),
    Sketcher.Constraint("Coincident", 15, 1, 8, 1),
    Sketcher.Constraint("Horizontal", 0),
    Sketcher.Constraint("Vertical", 2),
    Sketcher.Constraint("Horizontal", 4),
    Sketcher.Constraint("Vertical", 6),
    Sketcher.Constraint("Vertical", 8),
    Sketcher.Constraint("Horizontal", 10),
    Sketcher.Constraint("Vertical", 12),
    Sketcher.Constraint("Horizontal", 14),
    Sketcher.Constraint("Coincident", 9, 3, 1, 3),
    Sketcher.Constraint("Coincident", 11, 3, 7, 3),
    Sketcher.Constraint("Coincident", 13, 3, 5, 3),
    Sketcher.Constraint("Equal", 1, 3),
    Sketcher.Constraint("Equal", 3, 5),
    Sketcher.Constraint("Equal", 5, 7),
    Sketcher.Constraint("Equal", 13, 15),
    Sketcher.Constraint("Horizontal", 6, 2, 8, 2),
    Sketcher.Constraint("Horizontal", 12, 2, 15, 1),
    Sketcher.Constraint("Vertical", 3, 2, 9, 1),
    Sketcher.Constraint("Vertical", 9, 1, 14, 2),
    Sketcher.Constraint("Equal", 14, 2),
    Sketcher.Constraint("Radius", 1, Q("2.5 mm")),
    Sketcher.Constraint("Radius", 9, Q("0.500001 mm")),
    Sketcher.Constraint("DistanceX", 0, 2, 0, 1, Q("35 mm")),
    Sketcher.Constraint("DistanceX", 1, 3, -1, 1, Q("144.334691 mm")),
    Sketcher.Constraint("DistanceY", -1, 1, 1, 3, Q("9.858871 mm")),
])
pad8 = body8.newObject("PartDesign::Pad", "Pad007")
pad8.Profile = sketch8
pad8.Length = 400

doc.recompute()
